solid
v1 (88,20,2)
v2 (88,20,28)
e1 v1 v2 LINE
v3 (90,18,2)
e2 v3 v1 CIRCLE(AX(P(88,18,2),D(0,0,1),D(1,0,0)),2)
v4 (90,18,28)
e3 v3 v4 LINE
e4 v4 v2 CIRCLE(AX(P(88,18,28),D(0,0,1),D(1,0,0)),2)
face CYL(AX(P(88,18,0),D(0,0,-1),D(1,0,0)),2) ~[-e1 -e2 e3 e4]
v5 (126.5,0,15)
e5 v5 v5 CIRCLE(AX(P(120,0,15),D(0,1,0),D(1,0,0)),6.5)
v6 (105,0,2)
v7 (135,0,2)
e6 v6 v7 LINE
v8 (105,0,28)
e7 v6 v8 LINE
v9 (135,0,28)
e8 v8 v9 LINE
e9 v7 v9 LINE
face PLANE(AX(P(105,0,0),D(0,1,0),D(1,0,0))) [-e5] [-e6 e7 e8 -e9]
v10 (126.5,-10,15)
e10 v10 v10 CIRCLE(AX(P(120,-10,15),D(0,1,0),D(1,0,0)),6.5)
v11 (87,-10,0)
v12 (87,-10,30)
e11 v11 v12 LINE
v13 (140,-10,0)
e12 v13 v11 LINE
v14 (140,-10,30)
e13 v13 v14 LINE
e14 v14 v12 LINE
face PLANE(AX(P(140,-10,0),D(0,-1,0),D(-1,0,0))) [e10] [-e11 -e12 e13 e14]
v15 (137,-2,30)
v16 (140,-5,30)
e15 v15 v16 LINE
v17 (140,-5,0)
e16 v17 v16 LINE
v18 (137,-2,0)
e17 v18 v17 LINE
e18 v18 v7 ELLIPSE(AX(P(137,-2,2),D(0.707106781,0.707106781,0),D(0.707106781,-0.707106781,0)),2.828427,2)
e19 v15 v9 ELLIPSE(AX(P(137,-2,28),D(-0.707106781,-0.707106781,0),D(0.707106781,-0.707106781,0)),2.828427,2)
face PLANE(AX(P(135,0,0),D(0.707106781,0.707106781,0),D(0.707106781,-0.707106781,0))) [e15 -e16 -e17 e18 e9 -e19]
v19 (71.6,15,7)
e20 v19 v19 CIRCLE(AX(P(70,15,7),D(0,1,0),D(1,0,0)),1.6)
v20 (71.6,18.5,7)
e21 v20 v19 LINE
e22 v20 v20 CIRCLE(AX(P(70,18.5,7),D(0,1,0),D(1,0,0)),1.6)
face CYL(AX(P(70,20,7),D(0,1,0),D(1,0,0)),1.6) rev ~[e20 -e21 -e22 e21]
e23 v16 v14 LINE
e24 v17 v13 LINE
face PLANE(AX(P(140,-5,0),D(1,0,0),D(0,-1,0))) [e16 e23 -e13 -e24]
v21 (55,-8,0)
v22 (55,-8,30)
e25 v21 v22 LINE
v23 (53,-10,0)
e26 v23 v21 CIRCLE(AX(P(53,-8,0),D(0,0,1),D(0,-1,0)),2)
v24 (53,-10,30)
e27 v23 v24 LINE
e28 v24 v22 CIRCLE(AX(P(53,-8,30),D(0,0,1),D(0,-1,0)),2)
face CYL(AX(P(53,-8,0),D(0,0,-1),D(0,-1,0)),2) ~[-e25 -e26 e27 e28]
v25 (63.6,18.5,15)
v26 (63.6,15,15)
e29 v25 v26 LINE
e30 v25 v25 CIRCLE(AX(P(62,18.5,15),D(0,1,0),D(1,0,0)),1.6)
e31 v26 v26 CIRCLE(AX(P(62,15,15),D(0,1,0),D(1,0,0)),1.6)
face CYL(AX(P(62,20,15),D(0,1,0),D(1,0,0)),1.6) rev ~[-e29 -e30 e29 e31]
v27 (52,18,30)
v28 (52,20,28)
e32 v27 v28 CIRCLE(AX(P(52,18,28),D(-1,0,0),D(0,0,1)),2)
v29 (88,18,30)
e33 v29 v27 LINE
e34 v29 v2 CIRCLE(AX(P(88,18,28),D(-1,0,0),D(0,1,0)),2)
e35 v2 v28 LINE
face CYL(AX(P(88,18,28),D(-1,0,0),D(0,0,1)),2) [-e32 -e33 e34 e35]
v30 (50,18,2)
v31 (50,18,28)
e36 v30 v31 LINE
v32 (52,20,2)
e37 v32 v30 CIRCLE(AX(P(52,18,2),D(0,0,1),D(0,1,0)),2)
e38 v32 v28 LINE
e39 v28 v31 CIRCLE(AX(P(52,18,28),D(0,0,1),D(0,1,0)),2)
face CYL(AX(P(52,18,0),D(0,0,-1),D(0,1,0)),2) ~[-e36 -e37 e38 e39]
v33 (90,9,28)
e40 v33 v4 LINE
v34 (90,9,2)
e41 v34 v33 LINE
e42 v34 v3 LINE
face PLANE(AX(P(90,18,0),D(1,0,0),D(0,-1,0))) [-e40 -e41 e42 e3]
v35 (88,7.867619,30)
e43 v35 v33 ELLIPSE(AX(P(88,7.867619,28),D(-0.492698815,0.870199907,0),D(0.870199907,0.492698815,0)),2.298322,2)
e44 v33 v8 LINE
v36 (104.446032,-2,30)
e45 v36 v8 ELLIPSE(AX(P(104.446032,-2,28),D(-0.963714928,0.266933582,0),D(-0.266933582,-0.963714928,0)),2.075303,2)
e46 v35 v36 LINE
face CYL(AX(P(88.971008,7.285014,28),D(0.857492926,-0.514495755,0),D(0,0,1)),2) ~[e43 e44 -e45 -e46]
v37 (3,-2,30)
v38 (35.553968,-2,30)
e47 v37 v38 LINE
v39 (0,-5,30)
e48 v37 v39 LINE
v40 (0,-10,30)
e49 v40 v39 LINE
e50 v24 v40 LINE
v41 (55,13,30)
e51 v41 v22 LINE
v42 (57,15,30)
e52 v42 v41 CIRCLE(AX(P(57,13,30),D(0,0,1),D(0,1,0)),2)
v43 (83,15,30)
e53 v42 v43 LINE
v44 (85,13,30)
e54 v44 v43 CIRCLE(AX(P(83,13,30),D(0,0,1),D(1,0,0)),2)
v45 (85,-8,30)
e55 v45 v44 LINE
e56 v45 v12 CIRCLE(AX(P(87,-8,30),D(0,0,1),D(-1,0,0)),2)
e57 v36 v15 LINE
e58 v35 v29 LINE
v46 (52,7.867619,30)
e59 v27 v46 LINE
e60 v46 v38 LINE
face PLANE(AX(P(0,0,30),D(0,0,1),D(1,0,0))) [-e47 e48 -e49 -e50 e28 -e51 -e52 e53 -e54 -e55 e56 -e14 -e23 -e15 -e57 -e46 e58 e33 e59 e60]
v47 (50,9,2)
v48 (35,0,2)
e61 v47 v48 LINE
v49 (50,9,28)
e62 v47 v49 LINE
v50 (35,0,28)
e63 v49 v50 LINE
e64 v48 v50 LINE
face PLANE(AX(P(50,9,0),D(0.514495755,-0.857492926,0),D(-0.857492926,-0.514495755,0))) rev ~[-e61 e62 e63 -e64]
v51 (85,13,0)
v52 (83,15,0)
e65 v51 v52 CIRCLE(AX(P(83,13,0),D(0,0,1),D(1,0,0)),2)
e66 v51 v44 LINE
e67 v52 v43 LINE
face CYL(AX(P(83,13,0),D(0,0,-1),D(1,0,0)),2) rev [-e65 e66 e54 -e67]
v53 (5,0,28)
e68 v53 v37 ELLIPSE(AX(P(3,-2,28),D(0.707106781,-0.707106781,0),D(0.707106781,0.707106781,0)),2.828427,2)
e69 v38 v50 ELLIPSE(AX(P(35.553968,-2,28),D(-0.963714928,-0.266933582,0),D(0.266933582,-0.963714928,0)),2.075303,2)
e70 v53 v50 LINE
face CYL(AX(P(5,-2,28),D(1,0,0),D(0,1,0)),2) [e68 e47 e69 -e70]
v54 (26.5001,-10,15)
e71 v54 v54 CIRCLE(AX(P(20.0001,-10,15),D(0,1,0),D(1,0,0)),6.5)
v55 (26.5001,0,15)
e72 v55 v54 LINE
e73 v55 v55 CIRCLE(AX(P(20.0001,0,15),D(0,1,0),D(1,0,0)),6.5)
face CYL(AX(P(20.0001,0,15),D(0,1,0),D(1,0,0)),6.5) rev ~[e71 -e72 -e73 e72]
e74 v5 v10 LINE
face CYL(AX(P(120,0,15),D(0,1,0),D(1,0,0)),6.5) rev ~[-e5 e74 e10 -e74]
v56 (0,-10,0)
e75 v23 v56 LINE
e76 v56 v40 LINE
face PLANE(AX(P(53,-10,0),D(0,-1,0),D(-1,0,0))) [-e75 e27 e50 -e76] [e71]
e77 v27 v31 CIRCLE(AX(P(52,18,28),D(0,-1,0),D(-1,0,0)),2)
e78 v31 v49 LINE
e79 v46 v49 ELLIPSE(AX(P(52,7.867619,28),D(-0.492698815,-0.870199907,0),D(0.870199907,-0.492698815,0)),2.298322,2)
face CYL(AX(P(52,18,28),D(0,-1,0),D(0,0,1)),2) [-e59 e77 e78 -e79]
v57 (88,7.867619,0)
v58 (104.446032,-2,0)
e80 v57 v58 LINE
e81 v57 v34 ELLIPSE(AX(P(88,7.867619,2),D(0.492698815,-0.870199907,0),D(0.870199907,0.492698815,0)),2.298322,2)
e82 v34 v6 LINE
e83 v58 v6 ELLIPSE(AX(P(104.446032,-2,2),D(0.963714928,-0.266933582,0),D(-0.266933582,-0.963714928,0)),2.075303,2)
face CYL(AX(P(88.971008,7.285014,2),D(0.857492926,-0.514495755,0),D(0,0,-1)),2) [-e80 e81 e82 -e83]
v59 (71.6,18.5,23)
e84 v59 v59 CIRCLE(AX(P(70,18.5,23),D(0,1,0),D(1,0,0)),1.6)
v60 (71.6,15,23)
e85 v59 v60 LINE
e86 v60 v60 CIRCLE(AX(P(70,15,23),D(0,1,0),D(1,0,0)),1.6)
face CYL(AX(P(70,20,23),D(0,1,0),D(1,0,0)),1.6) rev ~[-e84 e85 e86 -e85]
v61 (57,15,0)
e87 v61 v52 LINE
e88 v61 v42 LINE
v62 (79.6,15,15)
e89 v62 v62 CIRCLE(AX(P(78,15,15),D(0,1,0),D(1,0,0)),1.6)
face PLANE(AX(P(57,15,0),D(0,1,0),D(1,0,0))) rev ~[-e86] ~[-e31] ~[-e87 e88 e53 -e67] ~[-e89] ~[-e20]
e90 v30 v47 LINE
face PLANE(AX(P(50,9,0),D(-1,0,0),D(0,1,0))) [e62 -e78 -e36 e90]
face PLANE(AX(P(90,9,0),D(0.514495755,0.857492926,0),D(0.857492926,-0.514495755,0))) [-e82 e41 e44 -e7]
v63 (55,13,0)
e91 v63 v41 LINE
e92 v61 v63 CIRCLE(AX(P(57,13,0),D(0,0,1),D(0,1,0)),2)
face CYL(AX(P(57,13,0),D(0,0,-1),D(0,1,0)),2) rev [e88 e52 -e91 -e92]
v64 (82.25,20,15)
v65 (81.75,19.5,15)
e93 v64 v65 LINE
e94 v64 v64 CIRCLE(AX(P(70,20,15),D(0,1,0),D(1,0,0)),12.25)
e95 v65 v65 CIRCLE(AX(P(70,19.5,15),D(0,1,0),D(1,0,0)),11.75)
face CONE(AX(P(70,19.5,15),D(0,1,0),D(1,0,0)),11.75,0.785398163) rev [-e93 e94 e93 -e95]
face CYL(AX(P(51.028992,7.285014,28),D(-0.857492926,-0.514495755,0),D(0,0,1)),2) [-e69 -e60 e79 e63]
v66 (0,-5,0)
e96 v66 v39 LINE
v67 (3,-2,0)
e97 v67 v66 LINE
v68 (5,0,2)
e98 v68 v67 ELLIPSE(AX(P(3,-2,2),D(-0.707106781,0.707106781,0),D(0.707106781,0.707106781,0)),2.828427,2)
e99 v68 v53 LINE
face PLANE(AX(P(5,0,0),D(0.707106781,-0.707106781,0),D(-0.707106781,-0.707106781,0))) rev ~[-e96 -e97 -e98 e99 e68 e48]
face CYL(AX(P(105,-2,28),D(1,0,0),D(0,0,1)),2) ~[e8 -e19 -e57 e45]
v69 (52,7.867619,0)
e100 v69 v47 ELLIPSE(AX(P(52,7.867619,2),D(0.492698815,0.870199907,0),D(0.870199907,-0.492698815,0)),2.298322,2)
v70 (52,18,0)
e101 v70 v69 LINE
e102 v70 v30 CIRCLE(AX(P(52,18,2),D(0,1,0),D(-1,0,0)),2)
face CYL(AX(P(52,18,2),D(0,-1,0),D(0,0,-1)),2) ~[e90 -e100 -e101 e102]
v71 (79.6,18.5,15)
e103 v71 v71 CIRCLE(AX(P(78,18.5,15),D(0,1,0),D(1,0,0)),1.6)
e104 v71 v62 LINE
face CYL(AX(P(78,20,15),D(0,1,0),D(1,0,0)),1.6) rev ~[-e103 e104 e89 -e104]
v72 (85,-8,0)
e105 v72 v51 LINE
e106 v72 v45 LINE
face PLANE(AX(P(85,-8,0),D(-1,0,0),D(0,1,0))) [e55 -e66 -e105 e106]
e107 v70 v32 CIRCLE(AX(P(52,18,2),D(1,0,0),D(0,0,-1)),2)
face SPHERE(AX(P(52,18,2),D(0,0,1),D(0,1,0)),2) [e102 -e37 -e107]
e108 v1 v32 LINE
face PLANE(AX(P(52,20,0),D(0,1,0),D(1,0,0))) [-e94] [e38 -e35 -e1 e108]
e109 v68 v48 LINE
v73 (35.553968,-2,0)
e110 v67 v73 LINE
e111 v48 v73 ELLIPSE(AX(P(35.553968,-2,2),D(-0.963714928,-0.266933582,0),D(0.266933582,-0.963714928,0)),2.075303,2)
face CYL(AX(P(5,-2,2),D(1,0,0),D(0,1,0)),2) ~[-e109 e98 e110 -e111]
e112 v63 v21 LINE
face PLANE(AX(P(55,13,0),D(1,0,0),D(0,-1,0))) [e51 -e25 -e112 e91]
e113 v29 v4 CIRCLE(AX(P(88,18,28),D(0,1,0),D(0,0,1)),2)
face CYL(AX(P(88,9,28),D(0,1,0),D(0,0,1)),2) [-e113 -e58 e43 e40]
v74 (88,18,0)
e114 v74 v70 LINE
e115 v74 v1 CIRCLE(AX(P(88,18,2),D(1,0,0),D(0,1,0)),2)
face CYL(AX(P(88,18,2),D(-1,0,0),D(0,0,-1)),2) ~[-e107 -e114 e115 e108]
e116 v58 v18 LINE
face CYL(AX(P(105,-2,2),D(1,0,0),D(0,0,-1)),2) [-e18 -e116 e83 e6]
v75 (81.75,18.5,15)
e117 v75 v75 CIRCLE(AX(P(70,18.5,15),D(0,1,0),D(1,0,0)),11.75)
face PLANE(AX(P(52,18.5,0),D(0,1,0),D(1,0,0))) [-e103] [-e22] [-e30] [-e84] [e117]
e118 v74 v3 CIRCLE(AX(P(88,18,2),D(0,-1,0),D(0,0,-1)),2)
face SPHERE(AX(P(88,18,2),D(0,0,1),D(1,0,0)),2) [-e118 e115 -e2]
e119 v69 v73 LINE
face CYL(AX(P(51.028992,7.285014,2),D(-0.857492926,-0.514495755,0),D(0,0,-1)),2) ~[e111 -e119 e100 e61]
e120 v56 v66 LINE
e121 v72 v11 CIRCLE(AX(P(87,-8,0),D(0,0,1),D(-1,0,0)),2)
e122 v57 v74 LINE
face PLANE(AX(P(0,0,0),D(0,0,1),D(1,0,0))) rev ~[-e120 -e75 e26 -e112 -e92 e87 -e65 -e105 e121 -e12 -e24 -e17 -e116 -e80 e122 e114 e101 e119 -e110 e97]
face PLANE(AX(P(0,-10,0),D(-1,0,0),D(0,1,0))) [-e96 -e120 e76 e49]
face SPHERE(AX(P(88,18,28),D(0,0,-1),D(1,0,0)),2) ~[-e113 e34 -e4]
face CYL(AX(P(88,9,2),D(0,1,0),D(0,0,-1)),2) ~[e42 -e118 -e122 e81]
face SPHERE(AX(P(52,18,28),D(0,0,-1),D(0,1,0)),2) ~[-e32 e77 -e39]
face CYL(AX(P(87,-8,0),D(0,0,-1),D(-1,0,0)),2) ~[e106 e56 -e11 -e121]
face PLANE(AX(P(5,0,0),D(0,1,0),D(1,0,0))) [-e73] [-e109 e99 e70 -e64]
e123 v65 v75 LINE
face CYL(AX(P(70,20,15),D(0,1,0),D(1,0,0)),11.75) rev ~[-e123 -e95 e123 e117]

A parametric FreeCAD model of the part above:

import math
import FreeCAD as App
import Part
import Sketcher
from FreeCAD import Vector
Q = App.Units.Quantity


def edges_at(feature, points):
    """Names of the edges that pass closest to the given points."""
    edges = feature.Shape.Edges
    near = lambda p: min(range(len(edges)), key=lambda i: edges[i].distToShape(Part.Vertex(*p))[0])
    return sorted({f"Edge{near(p) + 1}" for p in points})

doc = App.newDocument("Part")
body = doc.addObject("PartDesign::Body", "Body")

# Sketch on XY plane
sketch1 = body.newObject("Sketcher::SketchObject", "Sketch")
sketch1.AttachmentSupport = (doc.getObject("XY_Plane"), [""])
sketch1.MapMode = "FlatFace"
sketch1.addGeometry([
    Part.LineSegment(Vector(35, 0, 0), Vector(5, 0, 0)),  # 0
    Part.LineSegment(Vector(5, 0, 0), Vector(0, -5, 0)),  # 1
    Part.LineSegment(Vector(0, -5, 0), Vector(0, -10, 0)),  # 2
    Part.LineSegment(Vector(0, -10, 0), Vector(53, -10, 0)),  # 3
    Part.ArcOfCircle(Part.Circle(Vector(53, -8, 0), Vector(0, 0, 1), 2), math.radians(-90), math.radians(0)),  # 4
    Part.LineSegment(Vector(55, -8, 0), Vector(55, 13, 0)),  # 5
    Part.ArcOfCircle(Part.Circle(Vector(57, 13, 0), Vector(0, 0, 1), 2), math.radians(90), math.radians(180)),  # 6
    Part.LineSegment(Vector(57, 15, 0), Vector(83, 15, 0)),  # 7
    Part.ArcOfCircle(Part.Circle(Vector(83, 13, 0), Vector(0, 0, 1), 2), math.radians(0), math.radians(90)),  # 8
    Part.LineSegment(Vector(85, 13, 0), Vector(85, -8, 0)),  # 9
    Part.ArcOfCircle(Part.Circle(Vector(87, -8, 0), Vector(0, 0, 1), 2), math.radians(180), math.radians(270)),  # 10
    Part.LineSegment(Vector(87, -10, 0), Vector(140, -10, 0)),  # 11
    Part.LineSegment(Vector(140, -10, 0), Vector(140, -5, 0)),  # 12
    Part.LineSegment(Vector(140, -5, 0), Vector(135, 0, 0)),  # 13
    Part.LineSegment(Vector(135, 0, 0), Vector(105, 0, 0)),  # 14
    Part.LineSegment(Vector(105, 0, 0), Vector(90, 9, 0)),  # 15
    Part.LineSegment(Vector(90, 9, 0), Vector(90, 18, 0)),  # 16
    Part.ArcOfCircle(Part.Circle(Vector(88, 18, 0), Vector(0, 0, 1), 2), math.radians(0), math.radians(90)),  # 17
    Part.LineSegment(Vector(88, 20, 0), Vector(52, 20, 0)),  # 18
    Part.ArcOfCircle(Part.Circle(Vector(52, 18, 0), Vector(0, 0, 1), 2), math.radians(90), math.radians(180)),  # 19
    Part.LineSegment(Vector(50, 18, 0), Vector(50, 9, 0)),  # 20
    Part.LineSegment(Vector(50, 9, 0), Vector(35, 0, 0)),  # 21
], False)
sketch1.addConstraint([
    Sketcher.Constraint("Coincident", 0, 2, 1, 1),
    Sketcher.Constraint("Coincident", 1, 2, 2, 1),
    Sketcher.Constraint("Coincident", 2, 2, 3, 1),
    Sketcher.Constraint("Tangent", 3, 2, 4, 1),
    Sketcher.Constraint("Tangent", 4, 2, 5, 1),
    Sketcher.Constraint("Tangent", 5, 2, 6, 2),
    Sketcher.Constraint("Tangent", 6, 1, 7, 1),
    Sketcher.Constraint("Tangent", 7, 2, 8, 2),
    Sketcher.Constraint("Tangent", 8, 1, 9, 1),
    Sketcher.Constraint("Tangent", 9, 2, 10, 1),
    Sketcher.Constraint("Tangent", 10, 2, 11, 1),
    Sketcher.Constraint("Coincident", 11, 2, 12, 1),
    Sketcher.Constraint("Coincident", 12, 2, 13, 1),
    Sketcher.Constraint("Coincident", 13, 2, 14, 1),
    Sketcher.Constraint("Coincident", 14, 2, 15, 1),
    Sketcher.Constraint("Coincident", 15, 2, 16, 1),
    Sketcher.Constraint("Tangent", 16, 2, 17, 1),
    Sketcher.Constraint("Tangent", 17, 2, 18, 1),
    Sketcher.Constraint("Tangent", 18, 2, 19, 1),
    Sketcher.Constraint("Tangent", 19, 2, 20, 1),
    Sketcher.Constraint("Coincident", 20, 2, 21, 1),
    Sketcher.Constraint("Coincident", 21, 2, 0, 1),
    Sketcher.Constraint("Horizontal", 0),
    Sketcher.Constraint("Vertical", 2),
    Sketcher.Constraint("Horizontal", 3),
    Sketcher.Constraint("Vertical", 5),
    Sketcher.Constraint("Horizontal", 7),
    Sketcher.Constraint("Vertical", 9),
    Sketcher.Constraint("Horizontal", 11),
    Sketcher.Constraint("Vertical", 12),
    Sketcher.Constraint("Horizontal", 14),
    Sketcher.Constraint("Vertical", 16),
    Sketcher.Constraint("Horizontal", 18),
    Sketcher.Constraint("Vertical", 20),
    Sketcher.Constraint("Equal", 4, 6),
    Sketcher.Constraint("Equal", 6, 8),
    Sketcher.Constraint("Equal", 8, 10),
    Sketcher.Constraint("Equal", 10, 17),
    Sketcher.Constraint("Equal", 17, 19),
    Sketcher.Constraint("PointOnObject", 0, 2, -1),
    Sketcher.Constraint("PointOnObject", 1, 2, -2),
    Sketcher.Constraint("PointOnObject", 13, 2, -1),
    Sketcher.Constraint("Perpendicular", 1, 13),
    Sketcher.Constraint("Horizontal", 4, 3, 10, 3),
    Sketcher.Constraint("Horizontal", 1, 2, 12, 2),
    Sketcher.Constraint("Horizontal", 15, 2, 20, 2),
    Sketcher.Constraint("Equal", 3, 11),
    Sketcher.Constraint("Equal", 0, 14),
    Sketcher.Constraint("Equal", 1, 13),
    Sketcher.Constraint("Equal", 15, 21),
    Sketcher.Constraint("Radius", 4, Q("2 mm")),
    Sketcher.Constraint("DistanceX", 0, 2, 0, 1, Q("30 mm")),
    Sketcher.Constraint("DistanceY", 2, 2, 2, 1, Q("5 mm")),
    Sketcher.Constraint("DistanceY", 16, 1, 16, 2, Q("9 mm")),
    Sketcher.Constraint("DistanceX", -1, 1, 0, 2, Q("5 mm")),
    Sketcher.Constraint("DistanceY", -1, 1, 6, 1, Q("15 mm")),
    Sketcher.Constraint("DistanceY", -1, 1, 15, 2, Q("9 mm")),
    Sketcher.Constraint("DistanceX", -1, 1, 19, 2, Q("50 mm")),
    Sketcher.Constraint("DistanceX", 4, 3, 8, 3, Q("30 mm")),
    Sketcher.Constraint("DistanceX", 8, 3, 17, 3, Q("5 mm")),
])
pad1 = body.newObject("PartDesign::Pad", "Pad")
pad1.Profile = sketch1
pad1.Length = 30

# Sketch on XZ plane
sketch2 = body.newObject("Sketcher::SketchObject", "Sketch001")
sketch2.AttachmentSupport = (doc.getObject("XZ_Plane"), [""])
sketch2.MapMode = "FlatFace"
sketch2.addGeometry([
    Part.Circle(Vector(120, 15, 0), Vector(0, 0, 1), 6),
    Part.Circle(Vector(20, 15, 0), Vector(0, 0, 1), 6),
], False)
sketch2.addConstraint([
    Sketcher.Constraint("Equal", 0, 1),
    Sketcher.Constraint("Horizontal", 0, 3, 1, 3),
    Sketcher.Constraint("Diameter", 0, Q("13 mm")),
    Sketcher.Constraint("DistanceY", -1, 1, 0, 3, Q("15 mm")),
    Sketcher.Constraint("DistanceX", -1, 1, 0, 3, Q("120 mm")),
    Sketcher.Constraint("DistanceX", -1, 1, 1, 3, Q("20 mm")),
])
pocket1 = body.newObject("PartDesign::Pocket", "Pocket")
pocket1.Profile = sketch2
pocket1.Length = 30
pocket1.Reversed = True

# Sketch on XZ plane
sketch3 = body.newObject("Sketcher::SketchObject", "Sketch002")
sketch3.AttachmentSupport = (doc.getObject("XZ_Plane"), [""])
sketch3.MapMode = "FlatFace"
sketch3.AttachmentOffset = App.Placement(Vector(0, 0, -20), App.Rotation())
sketch3.addGeometry([
    Part.Circle(Vector(70, 15, 0), Vector(0, 0, 1), 11.8),  # 0
    Part.Circle(Vector(70, 23, 0), Vector(0, 0, 1), 1.6),  # 1
    Part.Circle(Vector(62, 15, 0), Vector(0, 0, 1), 1.6),  # 2
    Part.Circle(Vector(78, 15, 0), Vector(0, 0, 1), 1.6),  # 3
    Part.Circle(Vector(70, 7, 0), Vector(0, 0, 1), 1.6),  # 4
], False)
sketch3.addConstraint([
    Sketcher.Constraint("Equal", 1, 2),
    Sketcher.Constraint("Equal", 2, 3),
    Sketcher.Constraint("Equal", 3, 4),
    Sketcher.Constraint("Horizontal", 0, 3, 2, 3),
    Sketcher.Constraint("Horizontal", 2, 3, 3, 3),
    Sketcher.Constraint("Vertical", 0, 3, 1, 3),
    Sketcher.Constraint("Vertical", 1, 3, 4, 3),
    Sketcher.Constraint("Diameter", 0, Q("23.5 mm")),
    Sketcher.Constraint("Diameter", 1, Q("3.2 mm")),
    Sketcher.Constraint("DistanceY", -1, 1, 0, 3, Q("15 mm")),
    Sketcher.Constraint("DistanceY", 0, 3, 1, 3, Q("8 mm")),
    Sketcher.Constraint("DistanceX", 2, 3, 0, 3, Q("8 mm")),
    Sketcher.Constraint("DistanceX", 0, 3, 3, 3, Q("8 mm")),
    Sketcher.Constraint("DistanceY", 4, 3, 0, 3, Q("8 mm")),
    Sketcher.Constraint("DistanceX", -1, 1, 0, 3, Q("70 mm")),
])
pocket2 = body.newObject("PartDesign::Pocket", "Pocket001")
pocket2.Profile = sketch3
pocket2.Length = 1.5
pocket2.Reversed = True

# Sketch on XZ plane
sketch4 = body.newObject("Sketcher::SketchObject", "Sketch003")
sketch4.AttachmentSupport = (doc.getObject("XZ_Plane"), [""])
sketch4.MapMode = "FlatFace"
sketch4.AttachmentOffset = App.Placement(Vector(0, 0, -20), App.Rotation())
sketch4.addGeometry([
    Part.Circle(Vector(70, 7, 0), Vector(0, 0, 1), 1.6),
    Part.Circle(Vector(62, 15, 0), Vector(0, 0, 1), 1.6),
    Part.Circle(Vector(70, 23, 0), Vector(0, 0, 1), 1.6),
    Part.Circle(Vector(78, 15, 0), Vector(0, 0, 1), 1.6),
], False)
sketch4.addConstraint([
    Sketcher.Constraint("Equal", 0, 1),
    Sketcher.Constraint("Equal", 1, 2),
    Sketcher.Constraint("Equal", 2, 3),
    Sketcher.Constraint("Horizontal", 1, 3, 3, 3),
    Sketcher.Constraint("Vertical", 0, 3, 2, 3),
    Sketcher.Constraint("Diameter", 0, Q("3.2 mm")),
    Sketcher.Constraint("DistanceY", -1, 1, 1, 3, Q("15 mm")),
    Sketcher.Constraint("DistanceX", 1, 3, 0, 3, Q("8 mm")),
    Sketcher.Constraint("DistanceY", 0, 3, 1, 3, Q("8 mm")),
    Sketcher.Constraint("DistanceY", 1, 3, 2, 3, Q("8 mm")),
    Sketcher.Constraint("DistanceX", 0, 3, 3, 3, Q("8 mm")),
    Sketcher.Constraint("DistanceX", -1, 1, 0, 3, Q("70 mm")),
])
pocket3 = body.newObject("PartDesign::Pocket", "Pocket002")
pocket3.Profile = sketch4
pocket3.Length = 30
pocket3.Reversed = True
doc.recompute()

fillet = body.newObject("PartDesign::Fillet", "Fillet")
fillet.Base = (pocket3, edges_at(pocket3, [
    (50.586, 19.414, 0),
    (50, 13.5, 0),
    (89.414, 19.414, 0),
    (90, 13.5, 0),
    (70, 20, 0),
    (50.586, 19.414, 30),
    (50, 13.5, 30),
    (89.414, 19.414, 30),
    (90, 13.5, 30),
    (70, 20, 30),
    (97.5, 4.5, 30),
    (120, 0, 30),
    (97.5, 4.5, 0),
    (120, 0, 0),
    (42.5, 4.5, 30),
    (20, 0, 30),
    (20, 0, 0),
    (42.5, 4.5, 0),
]))
fillet.Radius = 2
doc.recompute()

chamfer = body.newObject("PartDesign::Chamfer", "Chamfer")
chamfer.Base = (fillet, edges_at(fillet, [(58.25, 20, 15)]))
chamfer.Size = 0.5

doc.recompute()
